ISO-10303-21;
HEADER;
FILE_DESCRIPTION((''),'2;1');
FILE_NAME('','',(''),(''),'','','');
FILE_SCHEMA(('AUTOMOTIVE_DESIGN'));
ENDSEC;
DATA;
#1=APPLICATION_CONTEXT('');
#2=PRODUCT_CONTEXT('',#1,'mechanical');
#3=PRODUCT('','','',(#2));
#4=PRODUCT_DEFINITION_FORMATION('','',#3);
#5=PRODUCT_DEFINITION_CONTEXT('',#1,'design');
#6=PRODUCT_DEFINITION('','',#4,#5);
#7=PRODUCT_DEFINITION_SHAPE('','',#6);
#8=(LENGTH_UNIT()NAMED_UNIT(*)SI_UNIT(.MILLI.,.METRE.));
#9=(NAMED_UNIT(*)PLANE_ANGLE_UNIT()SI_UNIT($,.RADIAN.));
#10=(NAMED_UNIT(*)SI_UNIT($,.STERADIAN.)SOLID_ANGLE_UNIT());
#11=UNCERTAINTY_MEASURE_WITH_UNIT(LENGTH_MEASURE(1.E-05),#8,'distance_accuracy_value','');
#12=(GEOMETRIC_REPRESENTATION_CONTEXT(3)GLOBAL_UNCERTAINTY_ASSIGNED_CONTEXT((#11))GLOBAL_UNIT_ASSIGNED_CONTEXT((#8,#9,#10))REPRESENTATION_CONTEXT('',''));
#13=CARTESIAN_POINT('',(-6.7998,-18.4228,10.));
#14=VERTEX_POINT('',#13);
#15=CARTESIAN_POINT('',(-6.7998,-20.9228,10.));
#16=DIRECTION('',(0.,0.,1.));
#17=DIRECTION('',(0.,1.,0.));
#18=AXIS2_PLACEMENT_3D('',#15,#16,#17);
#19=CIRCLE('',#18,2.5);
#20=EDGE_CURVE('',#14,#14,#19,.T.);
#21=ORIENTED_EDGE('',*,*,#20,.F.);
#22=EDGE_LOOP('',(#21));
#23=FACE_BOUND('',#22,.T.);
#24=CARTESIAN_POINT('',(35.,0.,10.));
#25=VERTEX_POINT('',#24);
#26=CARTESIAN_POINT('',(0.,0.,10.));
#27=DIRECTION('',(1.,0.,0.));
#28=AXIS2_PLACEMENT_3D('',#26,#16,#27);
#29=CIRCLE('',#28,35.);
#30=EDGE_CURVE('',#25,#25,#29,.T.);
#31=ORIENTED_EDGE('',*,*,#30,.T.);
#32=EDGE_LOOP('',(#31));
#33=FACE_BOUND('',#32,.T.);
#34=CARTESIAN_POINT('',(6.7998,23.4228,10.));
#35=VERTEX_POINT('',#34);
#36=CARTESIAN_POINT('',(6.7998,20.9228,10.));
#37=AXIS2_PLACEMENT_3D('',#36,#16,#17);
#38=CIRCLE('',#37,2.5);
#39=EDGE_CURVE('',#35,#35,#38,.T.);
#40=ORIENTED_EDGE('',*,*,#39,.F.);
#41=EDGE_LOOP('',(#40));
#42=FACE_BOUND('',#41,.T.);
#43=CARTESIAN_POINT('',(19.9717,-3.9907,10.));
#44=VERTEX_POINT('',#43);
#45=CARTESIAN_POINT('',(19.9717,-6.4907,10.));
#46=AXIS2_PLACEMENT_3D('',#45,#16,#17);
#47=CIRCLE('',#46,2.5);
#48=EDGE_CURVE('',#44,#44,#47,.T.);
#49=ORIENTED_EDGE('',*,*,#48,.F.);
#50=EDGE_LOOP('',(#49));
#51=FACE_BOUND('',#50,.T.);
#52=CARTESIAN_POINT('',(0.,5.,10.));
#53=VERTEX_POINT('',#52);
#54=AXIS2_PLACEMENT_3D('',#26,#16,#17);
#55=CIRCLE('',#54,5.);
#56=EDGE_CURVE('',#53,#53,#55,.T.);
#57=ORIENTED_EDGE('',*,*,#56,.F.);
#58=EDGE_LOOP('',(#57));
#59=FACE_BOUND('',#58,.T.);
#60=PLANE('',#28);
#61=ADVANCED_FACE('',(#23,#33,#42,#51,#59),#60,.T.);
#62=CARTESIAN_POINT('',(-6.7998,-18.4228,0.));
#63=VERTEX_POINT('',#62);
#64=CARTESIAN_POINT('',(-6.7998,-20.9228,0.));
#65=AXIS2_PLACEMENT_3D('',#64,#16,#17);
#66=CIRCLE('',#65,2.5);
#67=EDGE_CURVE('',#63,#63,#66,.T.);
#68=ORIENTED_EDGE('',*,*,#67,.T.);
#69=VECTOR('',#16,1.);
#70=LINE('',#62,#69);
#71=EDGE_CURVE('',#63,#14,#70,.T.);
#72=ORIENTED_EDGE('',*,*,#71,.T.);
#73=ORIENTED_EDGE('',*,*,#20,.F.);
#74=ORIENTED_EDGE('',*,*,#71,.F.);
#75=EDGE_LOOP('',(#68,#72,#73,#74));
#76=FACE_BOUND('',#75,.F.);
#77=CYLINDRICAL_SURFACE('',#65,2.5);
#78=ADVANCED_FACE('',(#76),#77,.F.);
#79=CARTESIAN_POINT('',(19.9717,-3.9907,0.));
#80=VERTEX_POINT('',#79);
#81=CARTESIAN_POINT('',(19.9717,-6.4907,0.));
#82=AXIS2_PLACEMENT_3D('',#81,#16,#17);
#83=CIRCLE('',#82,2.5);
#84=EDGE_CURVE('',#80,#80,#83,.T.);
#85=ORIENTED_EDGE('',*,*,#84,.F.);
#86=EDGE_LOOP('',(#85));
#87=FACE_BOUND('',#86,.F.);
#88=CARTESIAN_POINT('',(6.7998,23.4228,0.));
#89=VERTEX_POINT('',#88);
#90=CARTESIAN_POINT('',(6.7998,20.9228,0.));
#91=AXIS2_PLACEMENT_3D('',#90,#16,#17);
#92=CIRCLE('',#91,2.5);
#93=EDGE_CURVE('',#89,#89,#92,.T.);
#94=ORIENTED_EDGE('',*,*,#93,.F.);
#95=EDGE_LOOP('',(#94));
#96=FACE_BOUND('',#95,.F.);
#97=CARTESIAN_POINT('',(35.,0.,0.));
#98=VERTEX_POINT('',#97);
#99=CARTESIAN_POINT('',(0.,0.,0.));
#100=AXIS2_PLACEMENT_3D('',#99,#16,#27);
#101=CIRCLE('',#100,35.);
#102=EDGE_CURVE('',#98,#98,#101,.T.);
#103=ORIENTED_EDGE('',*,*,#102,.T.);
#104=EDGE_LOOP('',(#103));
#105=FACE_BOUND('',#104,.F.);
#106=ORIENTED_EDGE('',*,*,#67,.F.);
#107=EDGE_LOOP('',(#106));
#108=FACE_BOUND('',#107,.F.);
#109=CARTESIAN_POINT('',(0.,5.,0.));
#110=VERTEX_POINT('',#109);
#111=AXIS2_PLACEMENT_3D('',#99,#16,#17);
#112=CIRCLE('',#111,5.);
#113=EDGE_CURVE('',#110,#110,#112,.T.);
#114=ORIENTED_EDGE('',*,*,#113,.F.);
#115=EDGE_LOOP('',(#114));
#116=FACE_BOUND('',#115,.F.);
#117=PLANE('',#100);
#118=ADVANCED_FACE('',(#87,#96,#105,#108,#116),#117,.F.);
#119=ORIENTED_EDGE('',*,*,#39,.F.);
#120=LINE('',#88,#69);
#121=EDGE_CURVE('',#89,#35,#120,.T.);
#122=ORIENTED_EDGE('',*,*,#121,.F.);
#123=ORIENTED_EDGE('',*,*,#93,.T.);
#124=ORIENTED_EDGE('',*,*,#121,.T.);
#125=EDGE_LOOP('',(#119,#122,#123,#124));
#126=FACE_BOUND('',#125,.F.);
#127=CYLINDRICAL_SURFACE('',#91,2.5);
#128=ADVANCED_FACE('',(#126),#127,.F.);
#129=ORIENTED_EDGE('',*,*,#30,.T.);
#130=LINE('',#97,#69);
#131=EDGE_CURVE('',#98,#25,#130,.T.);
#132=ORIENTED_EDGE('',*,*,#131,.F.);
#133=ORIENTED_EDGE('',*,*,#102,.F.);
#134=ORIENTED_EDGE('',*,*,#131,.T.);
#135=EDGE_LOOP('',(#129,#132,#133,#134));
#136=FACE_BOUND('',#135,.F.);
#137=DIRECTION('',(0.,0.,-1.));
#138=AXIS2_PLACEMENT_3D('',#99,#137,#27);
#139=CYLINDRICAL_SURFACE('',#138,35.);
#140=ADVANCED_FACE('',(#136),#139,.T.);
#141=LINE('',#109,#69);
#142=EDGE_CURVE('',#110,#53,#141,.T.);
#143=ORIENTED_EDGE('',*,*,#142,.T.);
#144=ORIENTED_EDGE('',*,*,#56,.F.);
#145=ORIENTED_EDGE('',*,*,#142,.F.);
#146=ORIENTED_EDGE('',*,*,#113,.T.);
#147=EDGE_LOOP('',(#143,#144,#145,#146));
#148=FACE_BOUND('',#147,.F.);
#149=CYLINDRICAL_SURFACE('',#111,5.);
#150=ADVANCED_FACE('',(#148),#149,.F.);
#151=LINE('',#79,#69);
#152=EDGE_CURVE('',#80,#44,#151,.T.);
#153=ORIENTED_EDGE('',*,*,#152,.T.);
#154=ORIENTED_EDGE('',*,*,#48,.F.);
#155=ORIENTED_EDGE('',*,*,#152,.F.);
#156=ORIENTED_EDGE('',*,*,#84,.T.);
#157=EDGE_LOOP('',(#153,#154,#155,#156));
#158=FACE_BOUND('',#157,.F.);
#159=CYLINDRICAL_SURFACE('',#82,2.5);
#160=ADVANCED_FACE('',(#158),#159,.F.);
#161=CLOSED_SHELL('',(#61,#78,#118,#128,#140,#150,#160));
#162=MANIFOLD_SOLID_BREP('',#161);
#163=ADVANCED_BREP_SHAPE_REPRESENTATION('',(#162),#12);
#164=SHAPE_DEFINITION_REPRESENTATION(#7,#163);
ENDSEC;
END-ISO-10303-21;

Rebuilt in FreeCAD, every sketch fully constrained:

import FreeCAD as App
import Part
import Sketcher
Q = App.Units.Quantity

doc = App.newDocument("Part")
params = doc.addObject("Spreadsheet::Sheet", "Params")
for row, (alias, value) in enumerate([
    ("sketch1_diameter", "70 mm"),
    ("pad1_length", "10 mm"),
    ("sketch2_diameter", "10 mm"),
    ("hole_diameter", "10 mm"),
    ("sketch3_diameter", "5 mm"),
    ("hole2_diameter", "5 mm"),
], start=1):
    params.set(f"A{row}", alias)
    params.set(f"B{row}", "=" + value)
    params.setAlias(f"B{row}", alias)

body = doc.addObject("PartDesign::Body", "Body")

# Sketch on XY plane
sketch1 = body.newObject("Sketcher::SketchObject", "Sketch")
sketch1.AttachmentSupport = (doc.getObject("XY_Plane"), [""])
sketch1.MapMode = "FlatFace"
sketch1.addGeometry(Part.Circle(App.Vector(0, 0, 0), App.Vector(0, 0, 1), 35), False)
sketch1.addConstraint(Sketcher.Constraint("Coincident", 0, 3, -1, 1))
sketch1.addConstraint(Sketcher.Constraint("Diameter", 0, Q("70 mm")))
sketch1.setExpression("Constraints[1]", "Params.sketch1_diameter")
pad1 = body.newObject("PartDesign::Pad", "Pad")
pad1.Profile = sketch1
pad1.setExpression("Length", "Params.pad1_length")

# Sketch on XY plane
sketch2 = body.newObject("Sketcher::SketchObject", "Sketch001")
sketch2.AttachmentSupport = (doc.getObject("XY_Plane"), [""])
sketch2.MapMode = "FlatFace"
sketch2.addGeometry(Part.Circle(App.Vector(0, 0, 0), App.Vector(0, 0, 1), 5), False)
sketch2.addConstraint(Sketcher.Constraint("Coincident", 0, 3, -1, 1))
sketch2.addConstraint(Sketcher.Constraint("Diameter", 0, Q("10 mm")))
sketch2.setExpression("Constraints[1]", "Params.sketch2_diameter")
doc.recompute()
hole = body.newObject("PartDesign::Hole", "Hole")
hole.Profile = sketch2
hole.ThreadType = "None"
hole.setExpression("Diameter", "Params.hole_diameter")
hole.DepthType = "ThroughAll"
hole.Reversed = True

# Sketch on XY plane
sketch3 = body.newObject("Sketcher::SketchObject", "Sketch002")
sketch3.AttachmentSupport = (doc.getObject("XY_Plane"), [""])
sketch3.MapMode = "FlatFace"
sketch3.addGeometry(Part.Circle(App.Vector(6.8, 20.9, 0), App.Vector(0, 0, 1), 2.5), False)
sketch3.addGeometry(Part.Circle(App.Vector(20, -6.5, 0), App.Vector(0, 0, 1), 2.5), False)
sketch3.addGeometry(Part.Circle(App.Vector(-6.8, -20.9, 0), App.Vector(0, 0, 1), 2.5), False)
sketch3.addConstraint(Sketcher.Constraint("Equal", 0, 1))
sketch3.addConstraint(Sketcher.Constraint("Equal", 1, 2))
sketch3.addConstraint(Sketcher.Constraint("Symmetric", 0, 3, 2, 3, -1, 1))
sketch3.addConstraint(Sketcher.Constraint("Diameter", 0, Q("5 mm")))
sketch3.addConstraint(Sketcher.Constraint("DistanceX", 0, 3, 1, 3, Q("13.172 mm")))
sketch3.addConstraint(Sketcher.Constraint("DistanceY", 2, 3, 1, 3, Q("14.432 mm")))
sketch3.addConstraint(Sketcher.Constraint("DistanceX", -1, 1, 0, 3, Q("6.7998 mm")))
sketch3.addConstraint(Sketcher.Constraint("DistanceY", -1, 1, 0, 3, Q("20.9228 mm")))
sketch3.setExpression("Constraints[3]", "Params.sketch3_diameter")
doc.recompute()
hole2 = body.newObject("PartDesign::Hole", "Hole001")
hole2.Profile = sketch3
hole2.ThreadType = "None"
hole2.setExpression("Diameter", "Params.hole2_diameter")
hole2.DepthType = "ThroughAll"
hole2.Reversed = True

doc.recompute()
